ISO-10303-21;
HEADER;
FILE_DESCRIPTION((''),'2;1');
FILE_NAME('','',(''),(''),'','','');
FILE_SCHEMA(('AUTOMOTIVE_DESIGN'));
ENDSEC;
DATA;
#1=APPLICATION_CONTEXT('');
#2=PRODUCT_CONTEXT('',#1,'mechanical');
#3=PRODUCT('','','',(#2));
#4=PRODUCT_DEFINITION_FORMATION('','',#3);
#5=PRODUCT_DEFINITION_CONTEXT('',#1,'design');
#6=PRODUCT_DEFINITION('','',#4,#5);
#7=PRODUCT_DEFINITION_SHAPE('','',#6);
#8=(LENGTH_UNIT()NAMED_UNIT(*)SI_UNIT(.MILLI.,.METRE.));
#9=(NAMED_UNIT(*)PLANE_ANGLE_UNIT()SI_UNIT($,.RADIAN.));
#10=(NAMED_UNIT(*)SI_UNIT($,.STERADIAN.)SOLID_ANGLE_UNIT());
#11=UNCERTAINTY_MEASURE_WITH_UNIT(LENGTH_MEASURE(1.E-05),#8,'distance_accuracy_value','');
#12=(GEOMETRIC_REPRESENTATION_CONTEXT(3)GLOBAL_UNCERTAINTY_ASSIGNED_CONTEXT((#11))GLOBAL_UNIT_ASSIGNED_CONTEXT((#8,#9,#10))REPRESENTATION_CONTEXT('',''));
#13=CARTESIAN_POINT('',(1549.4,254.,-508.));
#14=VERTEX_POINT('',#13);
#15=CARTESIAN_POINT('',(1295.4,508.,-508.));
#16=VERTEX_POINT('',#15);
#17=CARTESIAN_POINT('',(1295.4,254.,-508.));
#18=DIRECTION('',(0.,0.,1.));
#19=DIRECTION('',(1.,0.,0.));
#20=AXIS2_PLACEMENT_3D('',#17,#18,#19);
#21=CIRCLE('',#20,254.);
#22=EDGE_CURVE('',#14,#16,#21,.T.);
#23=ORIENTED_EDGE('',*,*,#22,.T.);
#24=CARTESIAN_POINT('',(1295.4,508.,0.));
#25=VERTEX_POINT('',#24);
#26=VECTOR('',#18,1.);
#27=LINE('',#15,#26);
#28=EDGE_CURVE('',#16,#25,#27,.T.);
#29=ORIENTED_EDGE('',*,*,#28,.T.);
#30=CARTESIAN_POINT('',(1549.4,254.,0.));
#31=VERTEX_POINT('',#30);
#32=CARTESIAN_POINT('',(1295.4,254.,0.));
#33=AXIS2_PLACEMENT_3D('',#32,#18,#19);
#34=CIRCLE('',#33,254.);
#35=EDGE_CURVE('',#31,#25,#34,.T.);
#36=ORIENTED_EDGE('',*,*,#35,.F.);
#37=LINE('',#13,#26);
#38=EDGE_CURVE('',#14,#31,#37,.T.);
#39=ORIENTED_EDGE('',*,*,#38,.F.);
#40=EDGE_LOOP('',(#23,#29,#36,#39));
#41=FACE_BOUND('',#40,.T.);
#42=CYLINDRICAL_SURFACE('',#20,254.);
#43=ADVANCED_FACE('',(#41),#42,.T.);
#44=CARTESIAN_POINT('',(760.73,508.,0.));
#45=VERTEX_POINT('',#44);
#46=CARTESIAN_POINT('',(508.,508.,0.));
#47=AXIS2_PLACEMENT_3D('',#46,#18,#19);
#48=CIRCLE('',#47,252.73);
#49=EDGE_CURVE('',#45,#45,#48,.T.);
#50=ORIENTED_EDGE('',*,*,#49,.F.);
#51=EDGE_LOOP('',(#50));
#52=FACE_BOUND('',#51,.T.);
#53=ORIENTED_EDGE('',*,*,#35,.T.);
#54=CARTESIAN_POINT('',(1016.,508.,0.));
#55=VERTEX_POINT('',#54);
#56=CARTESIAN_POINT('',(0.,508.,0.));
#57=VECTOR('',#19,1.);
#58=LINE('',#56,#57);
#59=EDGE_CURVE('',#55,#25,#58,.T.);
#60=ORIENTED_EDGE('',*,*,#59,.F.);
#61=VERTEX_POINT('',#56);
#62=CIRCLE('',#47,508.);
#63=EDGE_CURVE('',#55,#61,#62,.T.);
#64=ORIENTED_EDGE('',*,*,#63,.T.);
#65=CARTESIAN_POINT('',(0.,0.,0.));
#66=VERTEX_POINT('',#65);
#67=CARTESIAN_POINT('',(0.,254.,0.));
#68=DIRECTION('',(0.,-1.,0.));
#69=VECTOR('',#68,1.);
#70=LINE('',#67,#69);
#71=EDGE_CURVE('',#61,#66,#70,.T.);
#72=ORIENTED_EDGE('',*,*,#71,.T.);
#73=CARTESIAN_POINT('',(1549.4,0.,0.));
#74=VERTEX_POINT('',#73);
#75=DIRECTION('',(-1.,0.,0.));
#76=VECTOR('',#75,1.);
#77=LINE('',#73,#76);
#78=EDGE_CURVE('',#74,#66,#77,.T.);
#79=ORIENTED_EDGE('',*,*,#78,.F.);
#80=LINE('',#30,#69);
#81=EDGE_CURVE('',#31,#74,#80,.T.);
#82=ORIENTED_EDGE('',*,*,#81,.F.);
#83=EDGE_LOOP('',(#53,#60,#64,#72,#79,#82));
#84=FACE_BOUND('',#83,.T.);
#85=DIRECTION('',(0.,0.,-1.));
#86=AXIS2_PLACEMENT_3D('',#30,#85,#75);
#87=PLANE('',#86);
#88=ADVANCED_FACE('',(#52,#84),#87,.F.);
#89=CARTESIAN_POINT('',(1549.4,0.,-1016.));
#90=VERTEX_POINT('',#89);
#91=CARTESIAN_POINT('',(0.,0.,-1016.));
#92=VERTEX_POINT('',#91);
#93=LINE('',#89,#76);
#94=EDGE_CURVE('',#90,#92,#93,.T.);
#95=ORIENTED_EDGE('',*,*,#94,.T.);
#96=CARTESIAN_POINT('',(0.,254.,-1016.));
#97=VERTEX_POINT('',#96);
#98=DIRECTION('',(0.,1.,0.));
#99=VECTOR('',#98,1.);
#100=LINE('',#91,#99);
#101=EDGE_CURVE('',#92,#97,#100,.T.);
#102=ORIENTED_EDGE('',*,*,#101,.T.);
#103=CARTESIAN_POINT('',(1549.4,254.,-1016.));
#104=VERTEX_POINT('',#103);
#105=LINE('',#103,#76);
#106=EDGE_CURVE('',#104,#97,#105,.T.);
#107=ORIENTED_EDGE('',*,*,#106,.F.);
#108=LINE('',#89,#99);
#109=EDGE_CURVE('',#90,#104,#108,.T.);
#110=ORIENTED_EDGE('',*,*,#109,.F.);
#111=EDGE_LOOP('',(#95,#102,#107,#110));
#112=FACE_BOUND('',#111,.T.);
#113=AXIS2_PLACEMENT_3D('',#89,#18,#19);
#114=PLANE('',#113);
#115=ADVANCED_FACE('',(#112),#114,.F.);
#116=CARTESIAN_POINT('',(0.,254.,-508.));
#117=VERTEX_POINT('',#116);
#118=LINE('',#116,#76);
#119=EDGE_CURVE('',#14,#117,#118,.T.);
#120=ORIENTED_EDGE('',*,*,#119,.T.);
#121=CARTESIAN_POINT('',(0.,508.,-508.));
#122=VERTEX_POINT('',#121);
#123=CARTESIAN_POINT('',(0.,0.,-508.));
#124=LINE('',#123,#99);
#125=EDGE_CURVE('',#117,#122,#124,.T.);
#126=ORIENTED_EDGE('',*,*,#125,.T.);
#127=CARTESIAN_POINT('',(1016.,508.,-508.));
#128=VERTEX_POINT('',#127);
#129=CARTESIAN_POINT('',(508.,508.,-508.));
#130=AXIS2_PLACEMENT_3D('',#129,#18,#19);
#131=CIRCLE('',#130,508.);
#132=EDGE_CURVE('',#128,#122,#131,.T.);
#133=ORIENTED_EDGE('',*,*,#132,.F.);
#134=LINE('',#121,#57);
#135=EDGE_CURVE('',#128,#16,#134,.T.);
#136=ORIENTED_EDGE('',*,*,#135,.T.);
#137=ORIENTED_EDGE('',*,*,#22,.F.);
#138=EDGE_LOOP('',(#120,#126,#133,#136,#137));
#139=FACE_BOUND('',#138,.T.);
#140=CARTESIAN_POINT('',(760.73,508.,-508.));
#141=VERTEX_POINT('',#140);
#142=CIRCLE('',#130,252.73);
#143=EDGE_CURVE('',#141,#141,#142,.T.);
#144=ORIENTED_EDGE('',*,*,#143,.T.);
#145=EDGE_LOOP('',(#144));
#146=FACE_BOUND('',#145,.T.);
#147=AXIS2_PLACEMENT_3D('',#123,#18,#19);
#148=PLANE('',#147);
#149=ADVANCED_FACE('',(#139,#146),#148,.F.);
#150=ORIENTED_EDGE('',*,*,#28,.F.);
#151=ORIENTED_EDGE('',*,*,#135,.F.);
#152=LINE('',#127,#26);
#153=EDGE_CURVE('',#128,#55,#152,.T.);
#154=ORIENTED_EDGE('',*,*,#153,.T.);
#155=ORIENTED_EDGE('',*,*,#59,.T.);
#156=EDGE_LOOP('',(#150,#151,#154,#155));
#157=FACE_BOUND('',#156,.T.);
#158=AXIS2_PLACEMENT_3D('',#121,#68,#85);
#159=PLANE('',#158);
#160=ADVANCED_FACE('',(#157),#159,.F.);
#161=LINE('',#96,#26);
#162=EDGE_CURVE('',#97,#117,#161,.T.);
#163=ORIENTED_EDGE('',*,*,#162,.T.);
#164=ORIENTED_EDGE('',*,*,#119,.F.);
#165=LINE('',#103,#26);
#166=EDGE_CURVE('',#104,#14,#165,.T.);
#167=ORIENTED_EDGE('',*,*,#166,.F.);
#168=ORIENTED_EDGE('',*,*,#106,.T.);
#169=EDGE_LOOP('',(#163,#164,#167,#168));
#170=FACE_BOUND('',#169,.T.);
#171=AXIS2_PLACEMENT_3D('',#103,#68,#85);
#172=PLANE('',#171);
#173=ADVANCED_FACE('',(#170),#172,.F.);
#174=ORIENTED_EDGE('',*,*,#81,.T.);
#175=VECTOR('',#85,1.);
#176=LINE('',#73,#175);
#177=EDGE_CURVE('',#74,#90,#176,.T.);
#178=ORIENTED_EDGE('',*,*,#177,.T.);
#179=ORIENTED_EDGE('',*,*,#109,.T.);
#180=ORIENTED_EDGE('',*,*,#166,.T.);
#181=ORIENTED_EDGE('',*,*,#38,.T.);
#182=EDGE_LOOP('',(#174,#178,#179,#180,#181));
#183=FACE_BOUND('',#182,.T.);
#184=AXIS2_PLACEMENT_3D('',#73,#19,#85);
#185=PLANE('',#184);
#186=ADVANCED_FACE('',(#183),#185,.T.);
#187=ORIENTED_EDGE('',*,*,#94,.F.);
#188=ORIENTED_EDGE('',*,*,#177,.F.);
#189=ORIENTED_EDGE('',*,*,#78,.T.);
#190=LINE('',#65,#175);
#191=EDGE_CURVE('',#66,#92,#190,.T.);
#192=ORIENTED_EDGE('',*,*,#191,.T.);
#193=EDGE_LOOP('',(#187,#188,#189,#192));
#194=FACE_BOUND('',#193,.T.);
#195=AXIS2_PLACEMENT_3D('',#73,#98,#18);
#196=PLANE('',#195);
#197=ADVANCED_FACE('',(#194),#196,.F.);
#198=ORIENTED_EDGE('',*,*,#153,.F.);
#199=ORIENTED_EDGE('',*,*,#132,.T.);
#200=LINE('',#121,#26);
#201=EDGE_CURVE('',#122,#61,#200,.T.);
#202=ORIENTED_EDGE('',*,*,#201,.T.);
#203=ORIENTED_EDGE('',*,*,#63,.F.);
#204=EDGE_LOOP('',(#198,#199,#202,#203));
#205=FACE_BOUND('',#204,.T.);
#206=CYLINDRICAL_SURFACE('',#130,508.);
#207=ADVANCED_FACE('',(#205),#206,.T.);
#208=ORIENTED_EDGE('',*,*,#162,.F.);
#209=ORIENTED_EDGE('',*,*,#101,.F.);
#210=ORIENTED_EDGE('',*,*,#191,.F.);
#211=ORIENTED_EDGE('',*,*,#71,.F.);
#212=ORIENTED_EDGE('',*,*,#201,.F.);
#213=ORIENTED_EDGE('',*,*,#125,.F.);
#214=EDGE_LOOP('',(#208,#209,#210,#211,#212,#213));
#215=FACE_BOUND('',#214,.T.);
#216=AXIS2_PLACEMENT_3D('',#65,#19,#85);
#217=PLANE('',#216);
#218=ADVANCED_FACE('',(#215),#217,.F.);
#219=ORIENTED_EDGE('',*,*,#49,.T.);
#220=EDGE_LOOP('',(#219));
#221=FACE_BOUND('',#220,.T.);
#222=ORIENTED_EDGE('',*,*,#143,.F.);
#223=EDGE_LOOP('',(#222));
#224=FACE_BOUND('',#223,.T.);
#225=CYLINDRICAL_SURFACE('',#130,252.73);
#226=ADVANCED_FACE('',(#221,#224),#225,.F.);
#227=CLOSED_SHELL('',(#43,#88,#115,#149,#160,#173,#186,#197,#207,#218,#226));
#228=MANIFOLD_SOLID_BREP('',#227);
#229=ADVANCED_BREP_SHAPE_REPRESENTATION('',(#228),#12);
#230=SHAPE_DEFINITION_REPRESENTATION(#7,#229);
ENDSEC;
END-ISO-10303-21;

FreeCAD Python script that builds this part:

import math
import FreeCAD as App
import Part
import Sketcher
from FreeCAD import Vector
Q = App.Units.Quantity

doc = App.newDocument("Part")
body = doc.addObject("PartDesign::Body", "Body")

# Sketch on YZ plane
sketch1 = body.newObject("Sketcher::SketchObject", "Sketch")
sketch1.AttachmentSupport = (doc.getObject("YZ_Plane"), [""])
sketch1.MapMode = "FlatFace"
sketch1.addGeometry(Part.LineSegment(Vector(254, 0, 0), Vector(0, 0, 0)), False)
sketch1.addGeometry(Part.LineSegment(Vector(0, 0, 0), Vector(0, -1016, 0)), False)
sketch1.addGeometry(Part.LineSegment(Vector(0, -1016, 0), Vector(254, -1016, 0)), False)
sketch1.addGeometry(Part.LineSegment(Vector(254, -1016, 0), Vector(254, 0, 0)), False)
sketch1.addConstraint(Sketcher.Constraint("Coincident", 0, 2, 1, 1))
sketch1.addConstraint(Sketcher.Constraint("Coincident", 1, 2, 2, 1))
sketch1.addConstraint(Sketcher.Constraint("Coincident", 2, 2, 3, 1))
sketch1.addConstraint(Sketcher.Constraint("Coincident", 3, 2, 0, 1))
sketch1.addConstraint(Sketcher.Constraint("Horizontal", 0))
sketch1.addConstraint(Sketcher.Constraint("Vertical", 1))
sketch1.addConstraint(Sketcher.Constraint("Horizontal", 2))
sketch1.addConstraint(Sketcher.Constraint("Vertical", 3))
sketch1.addConstraint(Sketcher.Constraint("Coincident", 0, 2, -1, 1))
sketch1.addConstraint(Sketcher.Constraint("DistanceX", 0, 2, 0, 1, Q("10 in")))
sketch1.addConstraint(Sketcher.Constraint("DistanceY", 1, 2, 1, 1, Q("40 in")))
pad1 = body.newObject("PartDesign::Pad", "Pad")
pad1.Profile = sketch1
pad1.Length = Q("61 in")

# Sketch on XY plane
sketch2 = body.newObject("Sketcher::SketchObject", "Sketch001")
sketch2.AttachmentSupport = (doc.getObject("XY_Plane"), [""])
sketch2.MapMode = "FlatFace"
sketch2.addGeometry(Part.LineSegment(Vector(0, 508, 0), Vector(0, 254, 0)), False)
sketch2.addGeometry(Part.LineSegment(Vector(0, 254, 0), Vector(1549, 254, 0)), False)
sketch2.addGeometry(Part.ArcOfCircle(Part.Circle(Vector(1295, 254, 0), Vector(0, 0, 1), 254), math.radians(0), math.radians(90)), False)
sketch2.addGeometry(Part.LineSegment(Vector(1295, 508, 0), Vector(1016, 508, 0)), False)
sketch2.addGeometry(Part.ArcOfCircle(Part.Circle(Vector(508, 508, 0), Vector(0, 0, 1), 508), math.radians(0), math.radians(180)), False)
sketch2.addGeometry(Part.Circle(Vector(508, 508, 0), Vector(0, 0, 1), 253), False)
sketch2.addConstraint(Sketcher.Constraint("Coincident", 0, 2, 1, 1))
sketch2.addConstraint(Sketcher.Constraint("Coincident", 1, 2, 2, 1))
sketch2.addConstraint(Sketcher.Constraint("Tangent", 2, 2, 3, 1))
sketch2.addConstraint(Sketcher.Constraint("Coincident", 3, 2, 4, 1))
sketch2.addConstraint(Sketcher.Constraint("Tangent", 4, 2, 0, 1))
sketch2.addConstraint(Sketcher.Constraint("Vertical", 0))
sketch2.addConstraint(Sketcher.Constraint("Horizontal", 1))
sketch2.addConstraint(Sketcher.Constraint("Horizontal", 3))
sketch2.addConstraint(Sketcher.Constraint("Coincident", 5, 3, 4, 3))
sketch2.addConstraint(Sketcher.Constraint("PointOnObject", 0, 2, -2))
sketch2.addConstraint(Sketcher.Constraint("Horizontal", 2, 3, 0, 2))
sketch2.addConstraint(Sketcher.Constraint("Horizontal", 5, 3, 2, 2))
sketch2.addConstraint(Sketcher.Constraint("Radius", 2, Q("10 in")))
sketch2.addConstraint(Sketcher.Constraint("Radius", 4, Q("20 in")))
sketch2.addConstraint(Sketcher.Constraint("Diameter", 5, Q("19.9 in")))
sketch2.addConstraint(Sketcher.Constraint("DistanceX", 1, 1, 1, 2, Q("61 in")))
sketch2.addConstraint(Sketcher.Constraint("DistanceY", -1, 1, 2, 3, Q("10 in")))
pad2 = body.newObject("PartDesign::Pad", "Pad001")
pad2.Profile = sketch2
pad2.Length = Q("20 in")
pad2.Reversed = True

doc.recompute()
